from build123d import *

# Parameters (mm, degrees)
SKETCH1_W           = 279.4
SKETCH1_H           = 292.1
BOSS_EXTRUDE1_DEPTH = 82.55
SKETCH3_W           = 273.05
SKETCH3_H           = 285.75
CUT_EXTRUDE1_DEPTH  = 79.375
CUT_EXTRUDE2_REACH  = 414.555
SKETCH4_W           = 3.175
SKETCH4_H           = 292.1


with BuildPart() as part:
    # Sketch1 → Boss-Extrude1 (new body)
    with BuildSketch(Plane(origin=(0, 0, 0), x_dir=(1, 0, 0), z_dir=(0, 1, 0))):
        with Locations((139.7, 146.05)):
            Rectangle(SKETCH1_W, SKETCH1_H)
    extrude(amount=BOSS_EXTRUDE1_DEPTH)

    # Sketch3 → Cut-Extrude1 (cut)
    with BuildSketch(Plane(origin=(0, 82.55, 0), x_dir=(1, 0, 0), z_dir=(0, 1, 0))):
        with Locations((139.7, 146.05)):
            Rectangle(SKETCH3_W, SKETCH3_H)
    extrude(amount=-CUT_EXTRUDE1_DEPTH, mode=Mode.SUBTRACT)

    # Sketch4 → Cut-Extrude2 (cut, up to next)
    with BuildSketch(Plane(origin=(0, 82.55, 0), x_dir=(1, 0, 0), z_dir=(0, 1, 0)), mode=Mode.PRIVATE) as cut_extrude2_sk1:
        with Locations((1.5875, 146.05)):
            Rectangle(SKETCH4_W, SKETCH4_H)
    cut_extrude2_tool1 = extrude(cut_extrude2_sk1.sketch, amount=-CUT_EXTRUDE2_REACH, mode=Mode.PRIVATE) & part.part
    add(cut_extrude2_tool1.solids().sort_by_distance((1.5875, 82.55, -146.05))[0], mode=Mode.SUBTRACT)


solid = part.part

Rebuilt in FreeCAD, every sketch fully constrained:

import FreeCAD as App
import Part
import Sketcher

V = App.Vector
Q = App.Units.Quantity

doc = App.newDocument("Part")
body = doc.addObject("PartDesign::Body", "Body")

sketch1 = body.newObject("Sketcher::SketchObject", "Sketch")
sketch1.AttachmentSupport = (doc.getObject("XZ_Plane"), [""])
sketch1.MapMode = "FlatFace"
sketch1.addGeometry([
    Part.LineSegment(V(0, -292, 0), V(0, 0, 0)),
    Part.LineSegment(V(0, 0, 0), V(279, 0, 0)),
    Part.LineSegment(V(279, 0, 0), V(279, -292, 0)),
    Part.LineSegment(V(279, -292, 0), V(0, -292, 0)),
], False)
sketch1.addConstraint([
    Sketcher.Constraint("Coincident", 0, 2, 1, 1),
    Sketcher.Constraint("Coincident", 1, 2, 2, 1),
    Sketcher.Constraint("Coincident", 2, 2, 3, 1),
    Sketcher.Constraint("Coincident", 3, 2, 0, 1),
    Sketcher.Constraint("Vertical", 0),
    Sketcher.Constraint("Horizontal", 1),
    Sketcher.Constraint("Vertical", 2),
    Sketcher.Constraint("Horizontal", 3),
    Sketcher.Constraint("Coincident", 0, 2, -1, 1),
    Sketcher.Constraint("DistanceX", 1, 1, 1, 2, Q("11 in")),
    Sketcher.Constraint("DistanceY", 0, 1, 0, 2, Q("11.5 in")),
])
pad1 = body.newObject("PartDesign::Pad", "Pad")
pad1.Profile = sketch1
pad1.Length = Q("3.25 in")
pad1.Reversed = True

sketch2 = body.newObject("Sketcher::SketchObject", "Sketch001")
sketch2.AttachmentSupport = (doc.getObject("XZ_Plane"), [""])
sketch2.MapMode = "FlatFace"
sketch2.AttachmentOffset = App.Placement(V(0, 0, -3.25 * 25.4), App.Rotation())
sketch2.addGeometry([
    Part.LineSegment(V(3, -289, 0), V(3, -3, 0)),
    Part.LineSegment(V(3, -3, 0), V(276, -3, 0)),
    Part.LineSegment(V(276, -3, 0), V(276, -289, 0)),
    Part.LineSegment(V(276, -289, 0), V(3, -289, 0)),
], False)
sketch2.addConstraint([
    Sketcher.Constraint("Coincident", 0, 2, 1, 1),
    Sketcher.Constraint("Coincident", 1, 2, 2, 1),
    Sketcher.Constraint("Coincident", 2, 2, 3, 1),
    Sketcher.Constraint("Coincident", 3, 2, 0, 1),
    Sketcher.Constraint("Vertical", 0),
    Sketcher.Constraint("Horizontal", 1),
    Sketcher.Constraint("Vertical", 2),
    Sketcher.Constraint("Horizontal", 3),
    Sketcher.Constraint("DistanceX", 1, 1, 1, 2, Q("10.75 in")),
    Sketcher.Constraint("DistanceY", 0, 1, 0, 2, Q("11.25 in")),
    Sketcher.Constraint("DistanceX", -1, 1, 0, 2, Q("0.125 in")),
    Sketcher.Constraint("DistanceY", 0, 2, -1, 1, Q("0.125 in")),
])
pocket1 = body.newObject("PartDesign::Pocket", "Pocket")
pocket1.Profile = sketch2
pocket1.Length = Q("3.125 in")
pocket1.Reversed = True

sketch3 = body.newObject("Sketcher::SketchObject", "Sketch002")
sketch3.AttachmentSupport = (doc.getObject("XZ_Plane"), [""])
sketch3.MapMode = "FlatFace"
sketch3.AttachmentOffset = App.Placement(V(0, 0, -3.25 * 25.4), App.Rotation())
sketch3.addGeometry([
    Part.LineSegment(V(0, -292.1, 0), V(0, 0, 0)),
    Part.LineSegment(V(0, 0, 0), V(3.2, 0, 0)),
    Part.LineSegment(V(3.2, 0, 0), V(3.2, -292.1, 0)),
    Part.LineSegment(V(3.2, -292.1, 0), V(0, -292.1, 0)),
], False)
sketch3.addConstraint([
    Sketcher.Constraint("Coincident", 0, 2, 1, 1),
    Sketcher.Constraint("Coincident", 1, 2, 2, 1),
    Sketcher.Constraint("Coincident", 2, 2, 3, 1),
    Sketcher.Constraint("Coincident", 3, 2, 0, 1),
    Sketcher.Constraint("Vertical", 0),
    Sketcher.Constraint("Horizontal", 1),
    Sketcher.Constraint("Vertical", 2),
    Sketcher.Constraint("Horizontal", 3),
    Sketcher.Constraint("Coincident", 0, 2, -1, 1),
    Sketcher.Constraint("DistanceY", 0, 1, 0, 2, Q("11.5 in")),
    Sketcher.Constraint("DistanceX", 1, 1, 1, 2, Q("0.125 in")),
])
pocket2 = body.newObject("PartDesign::Pocket", "Pocket001")
pocket2.Profile = sketch3
pocket2.Type = "UpToFirst"
pocket2.Reversed = True

doc.recompute()
